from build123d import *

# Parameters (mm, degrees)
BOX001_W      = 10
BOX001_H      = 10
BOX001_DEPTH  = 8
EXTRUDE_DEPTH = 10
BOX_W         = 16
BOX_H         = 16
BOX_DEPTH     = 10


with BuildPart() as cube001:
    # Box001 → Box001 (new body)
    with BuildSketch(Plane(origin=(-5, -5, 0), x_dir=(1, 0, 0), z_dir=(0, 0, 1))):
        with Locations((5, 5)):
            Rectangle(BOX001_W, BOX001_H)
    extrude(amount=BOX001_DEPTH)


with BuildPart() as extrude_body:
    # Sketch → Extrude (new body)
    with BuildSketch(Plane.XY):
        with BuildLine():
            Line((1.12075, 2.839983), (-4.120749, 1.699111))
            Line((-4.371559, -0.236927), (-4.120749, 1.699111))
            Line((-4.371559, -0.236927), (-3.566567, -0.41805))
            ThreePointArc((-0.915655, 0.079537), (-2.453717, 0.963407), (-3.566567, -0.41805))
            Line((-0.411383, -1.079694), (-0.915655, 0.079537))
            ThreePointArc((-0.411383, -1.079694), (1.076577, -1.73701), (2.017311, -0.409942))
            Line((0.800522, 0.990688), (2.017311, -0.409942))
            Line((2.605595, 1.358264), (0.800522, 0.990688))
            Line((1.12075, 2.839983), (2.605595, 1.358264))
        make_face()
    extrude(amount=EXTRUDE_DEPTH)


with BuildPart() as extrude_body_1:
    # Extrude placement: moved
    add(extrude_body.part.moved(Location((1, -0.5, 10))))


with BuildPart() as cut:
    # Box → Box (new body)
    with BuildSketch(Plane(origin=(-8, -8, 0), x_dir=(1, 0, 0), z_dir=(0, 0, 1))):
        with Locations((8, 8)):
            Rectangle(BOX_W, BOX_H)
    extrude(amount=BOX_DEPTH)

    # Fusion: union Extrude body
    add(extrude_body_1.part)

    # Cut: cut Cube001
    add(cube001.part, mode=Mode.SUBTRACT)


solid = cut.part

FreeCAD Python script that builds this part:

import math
import FreeCAD as App
import Part
import Sketcher

doc = App.newDocument("Part")
body = doc.addObject("PartDesign::Body", "Body")

sketch1 = body.newObject("Sketcher::SketchObject", "Sketch")
sketch1.AttachmentSupport = (doc.getObject("XY_Plane"), [""])
sketch1.MapMode = "FlatFace"
sketch1.addGeometry(Part.LineSegment(App.Vector(-5, 5, 0), App.Vector(-5, -5, 0)), False)
sketch1.addGeometry(Part.LineSegment(App.Vector(-5, -5, 0), App.Vector(5, -5, 0)), False)
sketch1.addGeometry(Part.LineSegment(App.Vector(5, -5, 0), App.Vector(5, 5, 0)), False)
sketch1.addGeometry(Part.LineSegment(App.Vector(5, 5, 0), App.Vector(-5, 5, 0)), False)
sketch1.addConstraint(Sketcher.Constraint("Coincident", 0, 2, 1, 1))
sketch1.addConstraint(Sketcher.Constraint("Coincident", 1, 2, 2, 1))
sketch1.addConstraint(Sketcher.Constraint("Coincident", 2, 2, 3, 1))
sketch1.addConstraint(Sketcher.Constraint("Coincident", 3, 2, 0, 1))
sketch1.addConstraint(Sketcher.Constraint("Vertical", 0))
sketch1.addConstraint(Sketcher.Constraint("Horizontal", 1))
sketch1.addConstraint(Sketcher.Constraint("Vertical", 2))
sketch1.addConstraint(Sketcher.Constraint("Horizontal", 3))
sketch1.addConstraint(Sketcher.Constraint("Symmetric", 0, 2, 2, 2, -1, 1))
sketch1.addConstraint(Sketcher.Constraint("Equal", 3, 0))
sketch1.addConstraint(Sketcher.Constraint("DistanceX", 1, 1, 1, 2, 10.0))
pad1 = body.newObject("PartDesign::Pad", "Pad")
pad1.Profile = sketch1
pad1.Length = 8
body2 = doc.addObject("PartDesign::Body", "Body001")

sketch2 = body2.newObject("Sketcher::SketchObject", "Sketch001")
sketch2.AttachmentSupport = (doc.getObject("XY_Plane001"), [""])
sketch2.MapMode = "FlatFace"
sketch2.addGeometry(Part.LineSegment(App.Vector(1.12075, 2.839983, 0), App.Vector(-4.120749, 1.699111, 0)), False)
sketch2.addGeometry(Part.LineSegment(App.Vector(-4.120749, 1.699111, 0), App.Vector(-4.371559, -0.236927, 0)), False)
sketch2.addGeometry(Part.LineSegment(App.Vector(-4.371559, -0.236927, 0), App.Vector(-3.566567, -0.41805, 0)), False)
sketch2.addGeometry(Part.ArcOfCircle(Part.Circle(App.Vector(-2.201843, -0.378457, 0), App.Vector(0, 0, 1), 1.365298), math.radians(19.600104), math.radians(181.661798)), False)
sketch2.addGeometry(Part.LineSegment(App.Vector(-0.915655, 0.079537, 0), App.Vector(-0.411383, -1.079694, 0)), False)
sketch2.addGeometry(Part.ArcOfCircle(Part.Circle(App.Vector(0.734843, -0.497792, 0), App.Vector(0, 0, 1), 1.285474), math.radians(-153.08457), math.radians(3.918696)), False)
sketch2.addGeometry(Part.LineSegment(App.Vector(2.017311, -0.409942, 0), App.Vector(0.800522, 0.990688, 0)), False)
sketch2.addGeometry(Part.LineSegment(App.Vector(0.800522, 0.990688, 0), App.Vector(2.605595, 1.358264, 0)), False)
sketch2.addGeometry(Part.LineSegment(App.Vector(2.605595, 1.358264, 0), App.Vector(1.12075, 2.839983, 0)), False)
sketch2.addConstraint(Sketcher.Constraint("Coincident", 0, 2, 1, 1))
sketch2.addConstraint(Sketcher.Constraint("Coincident", 1, 2, 2, 1))
sketch2.addConstraint(Sketcher.Constraint("Coincident", 2, 2, 3, 2))
sketch2.addConstraint(Sketcher.Constraint("Coincident", 3, 1, 4, 1))
sketch2.addConstraint(Sketcher.Constraint("Coincident", 4, 2, 5, 1))
sketch2.addConstraint(Sketcher.Constraint("Coincident", 5, 2, 6, 1))
sketch2.addConstraint(Sketcher.Constraint("Coincident", 6, 2, 7, 1))
sketch2.addConstraint(Sketcher.Constraint("Coincident", 7, 2, 8, 1))
sketch2.addConstraint(Sketcher.Constraint("Coincident", 8, 2, 0, 1))
sketch2.addConstraint(Sketcher.Constraint("Radius", 3, 1.365298))
sketch2.addConstraint(Sketcher.Constraint("Radius", 5, 1.285474))
sketch2.addConstraint(Sketcher.Constraint("DistanceX", 1, 2, 5, 3, 5.106402))
sketch2.addConstraint(Sketcher.Constraint("DistanceY", 4, 2, 5, 3, 0.581902))
sketch2.addConstraint(Sketcher.Constraint("Distance", 7, 1.842119))
sketch2.addConstraint(Sketcher.Constraint("Distance", 8, 2.097679))
sketch2.addConstraint(Sketcher.Constraint("DistanceX", 0, 2, -1, 1, 4.120749))
sketch2.addConstraint(Sketcher.Constraint("DistanceY", -1, 1, 0, 2, 1.699111))
sketch2.addConstraint(Sketcher.Constraint("DistanceX", 1, 2, -1, 1, 4.371559))
sketch2.addConstraint(Sketcher.Constraint("DistanceY", 2, 2, -1, 1, 0.41805))
sketch2.addConstraint(Sketcher.Constraint("DistanceX", -1, 1, 5, 2, 2.017311))
sketch2.addConstraint(Sketcher.Constraint("DistanceX", -1, 1, 6, 2, 0.800522))
sketch2.addConstraint(Sketcher.Constraint("DistanceY", -1, 1, 6, 2, 0.990688))
sketch2.addConstraint(Sketcher.Constraint("DistanceX", -1, 1, 8, 2, 1.12075))
sketch2.addConstraint(Sketcher.Constraint("DistanceY", 3, 3, 1, 2, 0.14153))
sketch2.addConstraint(Sketcher.Constraint("DistanceX", 0, 2, 2, 2, 0.554182))
sketch2.addConstraint(Sketcher.Constraint("DistanceX", 3, 3, 3, 1, 1.286188))
sketch2.addConstraint(Sketcher.Constraint("DistanceY", 5, 3, 3, 1, 0.577329))
sketch2.addConstraint(Sketcher.Constraint("DistanceX", 2, 2, 3, 1, 2.650912))
sketch2.addConstraint(Sketcher.Constraint("DistanceX", 3, 1, 7, 2, 3.52125))
pad2 = body2.newObject("PartDesign::Pad", "Pad001")
pad2.Profile = sketch2
pad2.Length = 10
body3 = doc.addObject("PartDesign::Body", "Body002")
doc.recompute()

body2.Placement = App.Placement(App.Vector(1, -0.5, 10), App.Rotation(App.Vector(0, 0, 1), 0))
boolean = body3.newObject("PartDesign::Boolean", "Boolean")
boolean.Type = "Fuse"
boolean.addObjects([body2])
body4 = doc.addObject("PartDesign::Body", "Body003")

sketch3 = body4.newObject("Sketcher::SketchObject", "Sketch002")
sketch3.AttachmentSupport = (doc.getObject("XY_Plane003"), [""])
sketch3.MapMode = "FlatFace"
sketch3.addGeometry(Part.LineSegment(App.Vector(-8, 8, 0), App.Vector(-8, -8, 0)), False)
sketch3.addGeometry(Part.LineSegment(App.Vector(-8, -8, 0), App.Vector(8, -8, 0)), False)
sketch3.addGeometry(Part.LineSegment(App.Vector(8, -8, 0), App.Vector(8, 8, 0)), False)
sketch3.addGeometry(Part.LineSegment(App.Vector(8, 8, 0), App.Vector(-8, 8, 0)), False)
sketch3.addConstraint(Sketcher.Constraint("Coincident", 0, 2, 1, 1))
sketch3.addConstraint(Sketcher.Constraint("Coincident", 1, 2, 2, 1))
sketch3.addConstraint(Sketcher.Constraint("Coincident", 2, 2, 3, 1))
sketch3.addConstraint(Sketcher.Constraint("Coincident", 3, 2, 0, 1))
sketch3.addConstraint(Sketcher.Constraint("Vertical", 0))
sketch3.addConstraint(Sketcher.Constraint("Horizontal", 1))
sketch3.addConstraint(Sketcher.Constraint("Vertical", 2))
sketch3.addConstraint(Sketcher.Constraint("Horizontal", 3))
sketch3.addConstraint(Sketcher.Constraint("Symmetric", 0, 2, 2, 2, -1, 1))
sketch3.addConstraint(Sketcher.Constraint("Equal", 3, 0))
sketch3.addConstraint(Sketcher.Constraint("DistanceX", 1, 1, 1, 2, 16.0))
pad3 = body4.newObject("PartDesign::Pad", "Pad002")
pad3.Profile = sketch3
pad3.Length = 10
doc.recompute()

boolean2 = body4.newObject("PartDesign::Boolean", "Boolean001")
boolean2.Type = "Fuse"
boolean2.addObjects([body3])
doc.recompute()

boolean3 = body4.newObject("PartDesign::Boolean", "Boolean002")
boolean3.Type = "Cut"
boolean3.addObjects([body])

doc.recompute()
